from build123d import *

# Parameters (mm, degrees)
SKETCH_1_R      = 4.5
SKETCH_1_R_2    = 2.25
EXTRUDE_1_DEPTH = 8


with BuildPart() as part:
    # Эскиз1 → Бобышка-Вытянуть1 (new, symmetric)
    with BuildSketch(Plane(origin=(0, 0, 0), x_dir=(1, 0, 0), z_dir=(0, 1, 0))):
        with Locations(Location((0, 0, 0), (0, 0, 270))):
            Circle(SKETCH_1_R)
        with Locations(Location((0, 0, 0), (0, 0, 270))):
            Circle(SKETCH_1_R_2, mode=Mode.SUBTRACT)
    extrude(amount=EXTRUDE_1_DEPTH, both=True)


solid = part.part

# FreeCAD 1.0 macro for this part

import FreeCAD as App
import Part
import Sketcher

V = App.Vector

doc = App.newDocument("Part")
body = doc.addObject("PartDesign::Body", "Body")

# Sketch on XZ plane
sketch1 = doc.addObject("Sketcher::SketchObject", "Sketch")
body.addObject(sketch1)
sketch1.AttachmentSupport = (doc.XZ_Plane, [""])
sketch1.MapMode = "FlatFace"
sketch1.addGeometry([
    Part.Circle(V(0, 0, 0), V(0, 0, 1), 4.5),
    Part.Circle(V(0, 0, 0), V(0, 0, 1), 2.2),
], False)
sketch1.addConstraint([
    Sketcher.Constraint("Coincident", 0, 3, -1, 1),
    Sketcher.Constraint("Coincident", 1, 3, -1, 1),
    Sketcher.Constraint("Diameter", 0, 9.0),
    Sketcher.Constraint("Diameter", 1, 4.5),
])
pad1 = doc.addObject("PartDesign::Pad", "Pad")
body.addObject(pad1)
pad1.Profile = sketch1
pad1.Length = 16
pad1.Midplane = True

doc.recompute()
